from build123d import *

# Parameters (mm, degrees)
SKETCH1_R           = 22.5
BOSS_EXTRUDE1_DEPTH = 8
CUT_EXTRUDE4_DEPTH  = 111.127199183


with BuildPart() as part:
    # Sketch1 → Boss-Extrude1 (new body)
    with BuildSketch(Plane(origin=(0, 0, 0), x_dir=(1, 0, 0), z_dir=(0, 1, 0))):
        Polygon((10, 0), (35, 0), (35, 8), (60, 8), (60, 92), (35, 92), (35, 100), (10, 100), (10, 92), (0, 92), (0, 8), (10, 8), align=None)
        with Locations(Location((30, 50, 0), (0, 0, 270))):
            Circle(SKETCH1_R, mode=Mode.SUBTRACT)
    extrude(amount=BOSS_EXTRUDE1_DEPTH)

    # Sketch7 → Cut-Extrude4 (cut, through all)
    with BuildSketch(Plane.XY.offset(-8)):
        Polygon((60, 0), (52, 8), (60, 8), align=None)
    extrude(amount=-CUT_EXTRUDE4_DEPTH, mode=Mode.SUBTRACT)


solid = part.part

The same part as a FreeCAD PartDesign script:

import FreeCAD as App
import Part
import Sketcher
Q = App.Units.Quantity

doc = App.newDocument("Part")
body = doc.addObject("PartDesign::Body", "Body")

# Sketch on XZ plane
sketch1 = doc.addObject("Sketcher::SketchObject", "Sketch")
body.addObject(sketch1)
sketch1.AttachmentSupport = (doc.XZ_Plane, [""])
sketch1.MapMode = "FlatFace"
sketch1.addGeometry([
    Part.LineSegment(App.Vector(10, 0, 0), App.Vector(35, 0, 0)),  # 0
    Part.LineSegment(App.Vector(35, 0, 0), App.Vector(35, -8, 0)),  # 1
    Part.LineSegment(App.Vector(35, -8, 0), App.Vector(60, -8, 0)),  # 2
    Part.LineSegment(App.Vector(60, -8, 0), App.Vector(60, -92, 0)),  # 3
    Part.LineSegment(App.Vector(60, -92, 0), App.Vector(35, -92, 0)),  # 4
    Part.LineSegment(App.Vector(35, -92, 0), App.Vector(35, -100, 0)),  # 5
    Part.LineSegment(App.Vector(35, -100, 0), App.Vector(10, -100, 0)),  # 6
    Part.LineSegment(App.Vector(10, -100, 0), App.Vector(10, -92, 0)),  # 7
    Part.LineSegment(App.Vector(10, -92, 0), App.Vector(0, -92, 0)),  # 8
    Part.LineSegment(App.Vector(0, -92, 0), App.Vector(0, -8, 0)),  # 9
    Part.LineSegment(App.Vector(0, -8, 0), App.Vector(10, -8, 0)),  # 10
    Part.LineSegment(App.Vector(10, -8, 0), App.Vector(10, 0, 0)),  # 11
    Part.Circle(App.Vector(30, -50, 0), App.Vector(0, 0, 1), 22),  # 12
], False)
sketch1.addConstraint([
    Sketcher.Constraint("Coincident", 0, 2, 1, 1),
    Sketcher.Constraint("Coincident", 1, 2, 2, 1),
    Sketcher.Constraint("Coincident", 2, 2, 3, 1),
    Sketcher.Constraint("Coincident", 3, 2, 4, 1),
    Sketcher.Constraint("Coincident", 4, 2, 5, 1),
    Sketcher.Constraint("Coincident", 5, 2, 6, 1),
    Sketcher.Constraint("Coincident", 6, 2, 7, 1),
    Sketcher.Constraint("Coincident", 7, 2, 8, 1),
    Sketcher.Constraint("Coincident", 8, 2, 9, 1),
    Sketcher.Constraint("Coincident", 9, 2, 10, 1),
    Sketcher.Constraint("Coincident", 10, 2, 11, 1),
    Sketcher.Constraint("Coincident", 11, 2, 0, 1),
    Sketcher.Constraint("Horizontal", 0),
    Sketcher.Constraint("Vertical", 1),
    Sketcher.Constraint("Horizontal", 2),
    Sketcher.Constraint("Vertical", 3),
    Sketcher.Constraint("Horizontal", 4),
    Sketcher.Constraint("Vertical", 5),
    Sketcher.Constraint("Horizontal", 6),
    Sketcher.Constraint("Vertical", 7),
    Sketcher.Constraint("Horizontal", 8),
    Sketcher.Constraint("Vertical", 9),
    Sketcher.Constraint("Horizontal", 10),
    Sketcher.Constraint("Vertical", 11),
    Sketcher.Constraint("PointOnObject", 0, 2, -1),
    Sketcher.Constraint("PointOnObject", 8, 2, -2),
    Sketcher.Constraint("Horizontal", 4, 2, 7, 2),
    Sketcher.Constraint("Horizontal", 2, 2, 9, 2),
    Sketcher.Constraint("Vertical", 1, 2, 4, 2),
    Sketcher.Constraint("Vertical", 7, 2, 10, 2),
    Sketcher.Constraint("Equal", 0, 2),
    Sketcher.Constraint("Equal", 1, 5),
    Sketcher.Constraint("Diameter", 12, Q("45 mm")),
    Sketcher.Constraint("DistanceX", 0, 1, 0, 2, Q("25 mm")),
    Sketcher.Constraint("DistanceX", 8, 2, 8, 1, Q("10 mm")),
    Sketcher.Constraint("DistanceY", 1, 2, 1, 1, Q("8 mm")),
    Sketcher.Constraint("DistanceY", 3, 2, 3, 1, Q("84 mm")),
    Sketcher.Constraint("DistanceX", -1, 1, 12, 3, Q("30 mm")),
    Sketcher.Constraint("DistanceY", 12, 3, -1, 1, Q("50 mm")),
])
pad1 = doc.addObject("PartDesign::Pad", "Pad")
body.addObject(pad1)
pad1.Profile = sketch1
pad1.Length = 8
pad1.Reversed = True

# Sketch on XY plane
sketch2 = doc.addObject("Sketcher::SketchObject", "Sketch001")
body.addObject(sketch2)
sketch2.AttachmentSupport = (doc.XY_Plane, [""])
sketch2.MapMode = "FlatFace"
sketch2.AttachmentOffset = App.Placement(App.Vector(0, 0, -8), App.Rotation())
sketch2.addGeometry([
    Part.LineSegment(App.Vector(52, 8, 0), App.Vector(60, 0, 0)),
    Part.LineSegment(App.Vector(60, 0, 0), App.Vector(60, 8, 0)),
    Part.LineSegment(App.Vector(60, 8, 0), App.Vector(52, 8, 0)),
], False)
sketch2.addConstraint([
    Sketcher.Constraint("Coincident", 0, 2, 1, 1),
    Sketcher.Constraint("Coincident", 1, 2, 2, 1),
    Sketcher.Constraint("Coincident", 2, 2, 0, 1),
    Sketcher.Constraint("Vertical", 1),
    Sketcher.Constraint("Horizontal", 2),
    Sketcher.Constraint("PointOnObject", 0, 2, -1),
    Sketcher.Constraint("Equal", 2, 1),
    Sketcher.Constraint("DistanceX", 2, 2, 2, 1, Q("8 mm")),
    Sketcher.Constraint("DistanceX", -1, 1, 0, 2, Q("60 mm")),
])
pocket1 = doc.addObject("PartDesign::Pocket", "Pocket")
body.addObject(pocket1)
pocket1.Profile = sketch2
pocket1.Type = "ThroughAll"

doc.recompute()
